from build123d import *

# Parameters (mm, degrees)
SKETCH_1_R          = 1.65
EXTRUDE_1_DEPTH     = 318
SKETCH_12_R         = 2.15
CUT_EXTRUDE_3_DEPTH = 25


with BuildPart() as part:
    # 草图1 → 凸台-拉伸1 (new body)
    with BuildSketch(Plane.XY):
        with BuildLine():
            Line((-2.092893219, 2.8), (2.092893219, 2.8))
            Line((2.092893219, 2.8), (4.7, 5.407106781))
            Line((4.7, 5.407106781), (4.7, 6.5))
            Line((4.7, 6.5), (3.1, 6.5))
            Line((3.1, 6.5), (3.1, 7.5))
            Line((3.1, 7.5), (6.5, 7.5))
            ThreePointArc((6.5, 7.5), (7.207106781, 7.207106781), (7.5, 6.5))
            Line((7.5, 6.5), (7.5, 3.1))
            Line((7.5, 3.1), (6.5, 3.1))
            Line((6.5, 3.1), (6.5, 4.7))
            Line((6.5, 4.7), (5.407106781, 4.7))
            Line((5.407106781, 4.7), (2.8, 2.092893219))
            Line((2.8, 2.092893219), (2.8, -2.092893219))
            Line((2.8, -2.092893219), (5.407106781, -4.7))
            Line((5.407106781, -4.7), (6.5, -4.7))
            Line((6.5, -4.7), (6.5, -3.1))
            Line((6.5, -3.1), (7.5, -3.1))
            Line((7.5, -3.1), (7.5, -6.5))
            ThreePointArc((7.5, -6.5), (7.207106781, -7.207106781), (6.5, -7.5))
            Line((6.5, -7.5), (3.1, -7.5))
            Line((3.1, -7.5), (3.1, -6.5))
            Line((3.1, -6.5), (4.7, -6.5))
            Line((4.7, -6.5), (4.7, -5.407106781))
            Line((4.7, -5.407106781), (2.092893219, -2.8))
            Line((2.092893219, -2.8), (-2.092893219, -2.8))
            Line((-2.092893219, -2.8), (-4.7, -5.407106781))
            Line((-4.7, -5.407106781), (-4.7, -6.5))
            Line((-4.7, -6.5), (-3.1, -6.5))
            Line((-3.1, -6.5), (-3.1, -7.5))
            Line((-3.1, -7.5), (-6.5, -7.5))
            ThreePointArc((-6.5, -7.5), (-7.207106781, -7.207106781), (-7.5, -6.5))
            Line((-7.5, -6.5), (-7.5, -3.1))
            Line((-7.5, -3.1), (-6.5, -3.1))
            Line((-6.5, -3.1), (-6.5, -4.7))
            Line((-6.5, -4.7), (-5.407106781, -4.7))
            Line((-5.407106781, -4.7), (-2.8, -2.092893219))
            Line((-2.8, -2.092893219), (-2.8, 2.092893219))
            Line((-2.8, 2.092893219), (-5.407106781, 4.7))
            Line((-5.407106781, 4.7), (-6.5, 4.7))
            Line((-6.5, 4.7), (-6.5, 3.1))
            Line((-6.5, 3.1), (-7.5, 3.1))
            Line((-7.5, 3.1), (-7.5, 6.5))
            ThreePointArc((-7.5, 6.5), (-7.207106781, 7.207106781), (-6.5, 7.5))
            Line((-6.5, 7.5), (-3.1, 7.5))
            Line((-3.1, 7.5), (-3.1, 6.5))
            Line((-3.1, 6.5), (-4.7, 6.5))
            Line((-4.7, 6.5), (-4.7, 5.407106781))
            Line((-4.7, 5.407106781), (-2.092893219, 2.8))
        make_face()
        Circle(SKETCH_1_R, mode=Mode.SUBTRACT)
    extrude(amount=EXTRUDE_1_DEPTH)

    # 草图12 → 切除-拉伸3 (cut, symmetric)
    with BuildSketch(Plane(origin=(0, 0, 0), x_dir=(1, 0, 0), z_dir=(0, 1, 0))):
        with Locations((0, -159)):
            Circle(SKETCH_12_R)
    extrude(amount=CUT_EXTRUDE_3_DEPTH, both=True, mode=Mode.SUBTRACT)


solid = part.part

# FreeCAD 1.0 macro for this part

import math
import FreeCAD as App
import Part
import Sketcher
Q = App.Units.Quantity

doc = App.newDocument("Part")
params = doc.addObject("Spreadsheet::Sheet", "Params")
for row, (alias, value) in enumerate([
    ("sketch1_radius", "1 mm"),
    ("sketch1_diameter", "3.3 mm"),
    ("sketch1_width", "1.6 mm"),
    ("sketch1_width2", "3.4 mm"),
    ("pad1_length", "318 mm"),
    ("sketch2_diameter", "4.3 mm"),
    ("pocket1_length", "50 mm"),
], start=1):
    params.set(f"A{row}", alias)
    params.set(f"B{row}", "=" + value)
    params.setAlias(f"B{row}", alias)

body = doc.addObject("PartDesign::Body", "Body")

# Sketch on XY plane
sketch1 = doc.addObject("Sketcher::SketchObject", "Sketch")
body.addObject(sketch1)
sketch1.AttachmentSupport = (doc.XY_Plane, [""])
sketch1.MapMode = "FlatFace"
sketch1.addGeometry(Part.LineSegment(App.Vector(2.1, 2.8, 0), App.Vector(-2.1, 2.8, 0)), False)
sketch1.addGeometry(Part.LineSegment(App.Vector(-2.1, 2.8, 0), App.Vector(-4.7, 5.4, 0)), False)
sketch1.addGeometry(Part.LineSegment(App.Vector(-4.7, 5.4, 0), App.Vector(-4.7, 6.5, 0)), False)
sketch1.addGeometry(Part.LineSegment(App.Vector(-4.7, 6.5, 0), App.Vector(-3.1, 6.5, 0)), False)
sketch1.addGeometry(Part.LineSegment(App.Vector(-3.1, 6.5, 0), App.Vector(-3.1, 7.5, 0)), False)
sketch1.addGeometry(Part.LineSegment(App.Vector(-3.1, 7.5, 0), App.Vector(-6.5, 7.5, 0)), False)
sketch1.addGeometry(Part.ArcOfCircle(Part.Circle(App.Vector(-6.5, 6.5, 0), App.Vector(0, 0, 1), 1), math.radians(90), math.radians(180)), False)
sketch1.addGeometry(Part.LineSegment(App.Vector(-7.5, 6.5, 0), App.Vector(-7.5, 3.1, 0)), False)
sketch1.addGeometry(Part.LineSegment(App.Vector(-7.5, 3.1, 0), App.Vector(-6.5, 3.1, 0)), False)
sketch1.addGeometry(Part.LineSegment(App.Vector(-6.5, 3.1, 0), App.Vector(-6.5, 4.7, 0)), False)
sketch1.addGeometry(Part.LineSegment(App.Vector(-6.5, 4.7, 0), App.Vector(-5.4, 4.7, 0)), False)
sketch1.addGeometry(Part.LineSegment(App.Vector(-5.4, 4.7, 0), App.Vector(-2.8, 2.1, 0)), False)
sketch1.addGeometry(Part.LineSegment(App.Vector(-2.8, 2.1, 0), App.Vector(-2.8, -2.1, 0)), False)
sketch1.addGeometry(Part.LineSegment(App.Vector(-2.8, -2.1, 0), App.Vector(-5.4, -4.7, 0)), False)
sketch1.addGeometry(Part.LineSegment(App.Vector(-5.4, -4.7, 0), App.Vector(-6.5, -4.7, 0)), False)
sketch1.addGeometry(Part.LineSegment(App.Vector(-6.5, -4.7, 0), App.Vector(-6.5, -3.1, 0)), False)
sketch1.addGeometry(Part.LineSegment(App.Vector(-6.5, -3.1, 0), App.Vector(-7.5, -3.1, 0)), False)
sketch1.addGeometry(Part.LineSegment(App.Vector(-7.5, -3.1, 0), App.Vector(-7.5, -6.5, 0)), False)
sketch1.addGeometry(Part.ArcOfCircle(Part.Circle(App.Vector(-6.5, -6.5, 0), App.Vector(0, 0, 1), 1), math.radians(-180), math.radians(-90)), False)
sketch1.addGeometry(Part.LineSegment(App.Vector(-6.5, -7.5, 0), App.Vector(-3.1, -7.5, 0)), False)
sketch1.addGeometry(Part.LineSegment(App.Vector(-3.1, -7.5, 0), App.Vector(-3.1, -6.5, 0)), False)
sketch1.addGeometry(Part.LineSegment(App.Vector(-3.1, -6.5, 0), App.Vector(-4.7, -6.5, 0)), False)
sketch1.addGeometry(Part.LineSegment(App.Vector(-4.7, -6.5, 0), App.Vector(-4.7, -5.4, 0)), False)
sketch1.addGeometry(Part.LineSegment(App.Vector(-4.7, -5.4, 0), App.Vector(-2.1, -2.8, 0)), False)
sketch1.addGeometry(Part.LineSegment(App.Vector(-2.1, -2.8, 0), App.Vector(2.1, -2.8, 0)), False)
sketch1.addGeometry(Part.LineSegment(App.Vector(2.1, -2.8, 0), App.Vector(4.7, -5.4, 0)), False)
sketch1.addGeometry(Part.LineSegment(App.Vector(4.7, -5.4, 0), App.Vector(4.7, -6.5, 0)), False)
sketch1.addGeometry(Part.LineSegment(App.Vector(4.7, -6.5, 0), App.Vector(3.1, -6.5, 0)), False)
sketch1.addGeometry(Part.LineSegment(App.Vector(3.1, -6.5, 0), App.Vector(3.1, -7.5, 0)), False)
sketch1.addGeometry(Part.LineSegment(App.Vector(3.1, -7.5, 0), App.Vector(6.5, -7.5, 0)), False)
sketch1.addGeometry(Part.ArcOfCircle(Part.Circle(App.Vector(6.5, -6.5, 0), App.Vector(0, 0, 1), 1), math.radians(-90), math.radians(0)), False)
sketch1.addGeometry(Part.LineSegment(App.Vector(7.5, -6.5, 0), App.Vector(7.5, -3.1, 0)), False)
sketch1.addGeometry(Part.LineSegment(App.Vector(7.5, -3.1, 0), App.Vector(6.5, -3.1, 0)), False)
sketch1.addGeometry(Part.LineSegment(App.Vector(6.5, -3.1, 0), App.Vector(6.5, -4.7, 0)), False)
sketch1.addGeometry(Part.LineSegment(App.Vector(6.5, -4.7, 0), App.Vector(5.4, -4.7, 0)), False)
sketch1.addGeometry(Part.LineSegment(App.Vector(5.4, -4.7, 0), App.Vector(2.8, -2.1, 0)), False)
sketch1.addGeometry(Part.LineSegment(App.Vector(2.8, -2.1, 0), App.Vector(2.8, 2.1, 0)), False)
sketch1.addGeometry(Part.LineSegment(App.Vector(2.8, 2.1, 0), App.Vector(5.4, 4.7, 0)), False)
sketch1.addGeometry(Part.LineSegment(App.Vector(5.4, 4.7, 0), App.Vector(6.5, 4.7, 0)), False)
sketch1.addGeometry(Part.LineSegment(App.Vector(6.5, 4.7, 0), App.Vector(6.5, 3.1, 0)), False)
sketch1.addGeometry(Part.LineSegment(App.Vector(6.5, 3.1, 0), App.Vector(7.5, 3.1, 0)), False)
sketch1.addGeometry(Part.LineSegment(App.Vector(7.5, 3.1, 0), App.Vector(7.5, 6.5, 0)), False)
sketch1.addGeometry(Part.ArcOfCircle(Part.Circle(App.Vector(6.5, 6.5, 0), App.Vector(0, 0, 1), 1), math.radians(0), math.radians(90)), False)
sketch1.addGeometry(Part.LineSegment(App.Vector(6.5, 7.5, 0), App.Vector(3.1, 7.5, 0)), False)
sketch1.addGeometry(Part.LineSegment(App.Vector(3.1, 7.5, 0), App.Vector(3.1, 6.5, 0)), False)
sketch1.addGeometry(Part.LineSegment(App.Vector(3.1, 6.5, 0), App.Vector(4.7, 6.5, 0)), False)
sketch1.addGeometry(Part.LineSegment(App.Vector(4.7, 6.5, 0), App.Vector(4.7, 5.4, 0)), False)
sketch1.addGeometry(Part.LineSegment(App.Vector(4.7, 5.4, 0), App.Vector(2.1, 2.8, 0)), False)
sketch1.addGeometry(Part.Circle(App.Vector(0, 0, 0), App.Vector(0, 0, 1), 1.6), False)
sketch1.addConstraint(Sketcher.Constraint("Coincident", 0, 2, 1, 1))
sketch1.addConstraint(Sketcher.Constraint("Coincident", 1, 2, 2, 1))
sketch1.addConstraint(Sketcher.Constraint("Coincident", 2, 2, 3, 1))
sketch1.addConstraint(Sketcher.Constraint("Coincident", 3, 2, 4, 1))
sketch1.addConstraint(Sketcher.Constraint("Coincident", 4, 2, 5, 1))
sketch1.addConstraint(Sketcher.Constraint("Tangent", 5, 2, 6, 1))
sketch1.addConstraint(Sketcher.Constraint("Tangent", 6, 2, 7, 1))
sketch1.addConstraint(Sketcher.Constraint("Coincident", 7, 2, 8, 1))
sketch1.addConstraint(Sketcher.Constraint("Coincident", 8, 2, 9, 1))
sketch1.addConstraint(Sketcher.Constraint("Coincident", 9, 2, 10, 1))
sketch1.addConstraint(Sketcher.Constraint("Coincident", 10, 2, 11, 1))
sketch1.addConstraint(Sketcher.Constraint("Coincident", 11, 2, 12, 1))
sketch1.addConstraint(Sketcher.Constraint("Coincident", 12, 2, 13, 1))
sketch1.addConstraint(Sketcher.Constraint("Coincident", 13, 2, 14, 1))
sketch1.addConstraint(Sketcher.Constraint("Coincident", 14, 2, 15, 1))
sketch1.addConstraint(Sketcher.Constraint("Coincident", 15, 2, 16, 1))
sketch1.addConstraint(Sketcher.Constraint("Coincident", 16, 2, 17, 1))
sketch1.addConstraint(Sketcher.Constraint("Tangent", 17, 2, 18, 1))
sketch1.addConstraint(Sketcher.Constraint("Tangent", 18, 2, 19, 1))
sketch1.addConstraint(Sketcher.Constraint("Coincident", 19, 2, 20, 1))
sketch1.addConstraint(Sketcher.Constraint("Coincident", 20, 2, 21, 1))
sketch1.addConstraint(Sketcher.Constraint("Coincident", 21, 2, 22, 1))
sketch1.addConstraint(Sketcher.Constraint("Coincident", 22, 2, 23, 1))
sketch1.addConstraint(Sketcher.Constraint("Coincident", 23, 2, 24, 1))
sketch1.addConstraint(Sketcher.Constraint("Coincident", 24, 2, 25, 1))
sketch1.addConstraint(Sketcher.Constraint("Coincident", 25, 2, 26, 1))
sketch1.addConstraint(Sketcher.Constraint("Coincident", 26, 2, 27, 1))
sketch1.addConstraint(Sketcher.Constraint("Coincident", 27, 2, 28, 1))
sketch1.addConstraint(Sketcher.Constraint("Coincident", 28, 2, 29, 1))
sketch1.addConstraint(Sketcher.Constraint("Tangent", 29, 2, 30, 1))
sketch1.addConstraint(Sketcher.Constraint("Tangent", 30, 2, 31, 1))
sketch1.addConstraint(Sketcher.Constraint("Coincident", 31, 2, 32, 1))
sketch1.addConstraint(Sketcher.Constraint("Coincident", 32, 2, 33, 1))
sketch1.addConstraint(Sketcher.Constraint("Coincident", 33, 2, 34, 1))
sketch1.addConstraint(Sketcher.Constraint("Coincident", 34, 2, 35, 1))
sketch1.addConstraint(Sketcher.Constraint("Coincident", 35, 2, 36, 1))
sketch1.addConstraint(Sketcher.Constraint("Coincident", 36, 2, 37, 1))
sketch1.addConstraint(Sketcher.Constraint("Coincident", 37, 2, 38, 1))
sketch1.addConstraint(Sketcher.Constraint("Coincident", 38, 2, 39, 1))
sketch1.addConstraint(Sketcher.Constraint("Coincident", 39, 2, 40, 1))
sketch1.addConstraint(Sketcher.Constraint("Coincident", 40, 2, 41, 1))
sketch1.addConstraint(Sketcher.Constraint("Tangent", 41, 2, 42, 1))
sketch1.addConstraint(Sketcher.Constraint("Tangent", 42, 2, 43, 1))
sketch1.addConstraint(Sketcher.Constraint("Coincident", 43, 2, 44, 1))
sketch1.addConstraint(Sketcher.Constraint("Coincident", 44, 2, 45, 1))
sketch1.addConstraint(Sketcher.Constraint("Coincident", 45, 2, 46, 1))
sketch1.addConstraint(Sketcher.Constraint("Coincident", 46, 2, 47, 1))
sketch1.addConstraint(Sketcher.Constraint("Coincident", 47, 2, 0, 1))
sketch1.addConstraint(Sketcher.Constraint("Horizontal", 0))
sketch1.addConstraint(Sketcher.Constraint("Vertical", 2))
sketch1.addConstraint(Sketcher.Constraint("Horizontal", 3))
sketch1.addConstraint(Sketcher.Constraint("Vertical", 4))
sketch1.addConstraint(Sketcher.Constraint("Horizontal", 5))
sketch1.addConstraint(Sketcher.Constraint("Vertical", 7))
sketch1.addConstraint(Sketcher.Constraint("Horizontal", 8))
sketch1.addConstraint(Sketcher.Constraint("Vertical", 9))
sketch1.addConstraint(Sketcher.Constraint("Horizontal", 10))
sketch1.addConstraint(Sketcher.Constraint("Vertical", 12))
sketch1.addConstraint(Sketcher.Constraint("Horizontal", 14))
sketch1.addConstraint(Sketcher.Constraint("Vertical", 15))
sketch1.addConstraint(Sketcher.Constraint("Horizontal", 16))
sketch1.addConstraint(Sketcher.Constraint("Vertical", 17))
sketch1.addConstraint(Sketcher.Constraint("Horizontal", 19))
sketch1.addConstraint(Sketcher.Constraint("Vertical", 20))
sketch1.addConstraint(Sketcher.Constraint("Horizontal", 21))
sketch1.addConstraint(Sketcher.Constraint("Vertical", 22))
sketch1.addConstraint(Sketcher.Constraint("Horizontal", 24))
sketch1.addConstraint(Sketcher.Constraint("Vertical", 26))
sketch1.addConstraint(Sketcher.Constraint("Horizontal", 27))
sketch1.addConstraint(Sketcher.Constraint("Vertical", 28))
sketch1.addConstraint(Sketcher.Constraint("Horizontal", 29))
sketch1.addConstraint(Sketcher.Constraint("Vertical", 31))
sketch1.addConstraint(Sketcher.Constraint("Horizontal", 32))
sketch1.addConstraint(Sketcher.Constraint("Vertical", 33))
sketch1.addConstraint(Sketcher.Constraint("Horizontal", 34))
sketch1.addConstraint(Sketcher.Constraint("Vertical", 36))
sketch1.addConstraint(Sketcher.Constraint("Horizontal", 38))
sketch1.addConstraint(Sketcher.Constraint("Vertical", 39))
sketch1.addConstraint(Sketcher.Constraint("Horizontal", 40))
sketch1.addConstraint(Sketcher.Constraint("Vertical", 41))
sketch1.addConstraint(Sketcher.Constraint("Horizontal", 43))
sketch1.addConstraint(Sketcher.Constraint("Vertical", 44))
sketch1.addConstraint(Sketcher.Constraint("Horizontal", 45))
sketch1.addConstraint(Sketcher.Constraint("Vertical", 46))
sketch1.addConstraint(Sketcher.Constraint("Coincident", 48, 3, -1, 1))
sketch1.addConstraint(Sketcher.Constraint("Equal", 6, 18))
sketch1.addConstraint(Sketcher.Constraint("Equal", 18, 30))
sketch1.addConstraint(Sketcher.Constraint("Equal", 30, 42))
sketch1.addConstraint(Sketcher.Constraint("Symmetric", 6, 3, 30, 3, -1, 1))
sketch1.addConstraint(Sketcher.Constraint("Symmetric", 18, 3, 42, 3, -1, 1))
sketch1.addConstraint(Sketcher.Constraint("Symmetric", 0, 2, 24, 2, -1, 1))
sketch1.addConstraint(Sketcher.Constraint("Symmetric", 1, 2, 25, 2, -1, 1))
sketch1.addConstraint(Sketcher.Constraint("Symmetric", 3, 2, 27, 2, -1, 1))
sketch1.addConstraint(Sketcher.Constraint("Symmetric", 8, 2, 32, 2, -1, 1))
sketch1.addConstraint(Sketcher.Constraint("Symmetric", 10, 2, 34, 2, -1, 1))
sketch1.addConstraint(Sketcher.Constraint("Symmetric", 11, 2, 35, 2, -1, 1))
sketch1.addConstraint(Sketcher.Constraint("Symmetric", 13, 2, 37, 2, -1, 1))
sketch1.addConstraint(Sketcher.Constraint("Symmetric", 15, 2, 39, 2, -1, 1))
sketch1.addConstraint(Sketcher.Constraint("Symmetric", 20, 2, 44, 2, -1, 1))
sketch1.addConstraint(Sketcher.Constraint("Symmetric", 22, 2, 46, 2, -1, 1))
sketch1.addConstraint(Sketcher.Constraint("Symmetric", 18, 3, 30, 3, -2))
sketch1.addConstraint(Sketcher.Constraint("Symmetric", 22, 2, 25, 2, -2))
sketch1.addConstraint(Sketcher.Constraint("Symmetric", 20, 2, 27, 2, -2))
sketch1.addConstraint(Sketcher.Constraint("Symmetric", 15, 2, 32, 2, -2))
sketch1.addConstraint(Sketcher.Constraint("Symmetric", 13, 2, 34, 2, -2))
sketch1.addConstraint(Sketcher.Constraint("Parallel", 1, 11))
sketch1.addConstraint(Sketcher.Constraint("Perpendicular", 11, 13))
sketch1.addConstraint(Sketcher.Constraint("Parallel", 13, 23))
sketch1.addConstraint(Sketcher.Constraint("Perpendicular", 35, 37))
sketch1.addConstraint(Sketcher.Constraint("Parallel", 37, 47))
sketch1.addConstraint(Sketcher.Constraint("Horizontal", 42, 3, 2, 2))
sketch1.addConstraint(Sketcher.Constraint("Horizontal", 12, 2, 35, 2))
sketch1.addConstraint(Sketcher.Constraint("Vertical", 5, 2, 8, 2))
sketch1.addConstraint(Sketcher.Constraint("Equal", 38, 2))
sketch1.addConstraint(Sketcher.Constraint("Equal", 43, 7))
sketch1.addConstraint(Sketcher.Constraint("Equal", 45, 9))
sketch1.addConstraint(Sketcher.Constraint("Equal", 24, 12))
sketch1.addConstraint(Sketcher.Constraint("Equal", 1, 11))
sketch1.addConstraint(Sketcher.Constraint("Radius", 6, Q("1 mm")))
sketch1.addConstraint(Sketcher.Constraint("Diameter", 48, Q("3.3 mm")))
sketch1.addConstraint(Sketcher.Constraint("DistanceX", 3, 1, 3, 2, Q("1.6 mm")))
sketch1.addConstraint(Sketcher.Constraint("DistanceX", 5, 2, 5, 1, Q("3.4 mm")))
sketch1.addConstraint(Sketcher.Constraint("DistanceY", 18, 3, 6, 3, Q("13 mm")))
sketch1.addConstraint(Sketcher.Constraint("DistanceY", -1, 1, 0, 2, Q("2.8 mm")))
sketch1.addConstraint(Sketcher.Constraint("DistanceX", 0, 2, 0, 1, Q("4.185786 mm")))
sketch1.setExpression("Constraints[118]", "Params.sketch1_radius")
sketch1.setExpression("Constraints[119]", "Params.sketch1_diameter")
sketch1.setExpression("Constraints[120]", "Params.sketch1_width")
sketch1.setExpression("Constraints[121]", "Params.sketch1_width2")
pad1 = doc.addObject("PartDesign::Pad", "Pad")
body.addObject(pad1)
pad1.Profile = sketch1
pad1.setExpression("Length", "Params.pad1_length")

# Sketch on XZ plane
sketch2 = doc.addObject("Sketcher::SketchObject", "Sketch001")
body.addObject(sketch2)
sketch2.AttachmentSupport = (doc.XZ_Plane, [""])
sketch2.MapMode = "FlatFace"
sketch2.addGeometry(Part.Circle(App.Vector(0, 159, 0), App.Vector(0, 0, 1), 2.1), False)
sketch2.addConstraint(Sketcher.Constraint("PointOnObject", 0, 3, -2))
sketch2.addConstraint(Sketcher.Constraint("Diameter", 0, Q("4.3 mm")))
sketch2.addConstraint(Sketcher.Constraint("DistanceY", -1, 1, 0, 3, Q("159 mm")))
sketch2.setExpression("Constraints[1]", "Params.sketch2_diameter")
pocket1 = doc.addObject("PartDesign::Pocket", "Pocket")
body.addObject(pocket1)
pocket1.Profile = sketch2
pocket1.setExpression("Length", "Params.pocket1_length")
pocket1.Midplane = True

doc.recompute()
